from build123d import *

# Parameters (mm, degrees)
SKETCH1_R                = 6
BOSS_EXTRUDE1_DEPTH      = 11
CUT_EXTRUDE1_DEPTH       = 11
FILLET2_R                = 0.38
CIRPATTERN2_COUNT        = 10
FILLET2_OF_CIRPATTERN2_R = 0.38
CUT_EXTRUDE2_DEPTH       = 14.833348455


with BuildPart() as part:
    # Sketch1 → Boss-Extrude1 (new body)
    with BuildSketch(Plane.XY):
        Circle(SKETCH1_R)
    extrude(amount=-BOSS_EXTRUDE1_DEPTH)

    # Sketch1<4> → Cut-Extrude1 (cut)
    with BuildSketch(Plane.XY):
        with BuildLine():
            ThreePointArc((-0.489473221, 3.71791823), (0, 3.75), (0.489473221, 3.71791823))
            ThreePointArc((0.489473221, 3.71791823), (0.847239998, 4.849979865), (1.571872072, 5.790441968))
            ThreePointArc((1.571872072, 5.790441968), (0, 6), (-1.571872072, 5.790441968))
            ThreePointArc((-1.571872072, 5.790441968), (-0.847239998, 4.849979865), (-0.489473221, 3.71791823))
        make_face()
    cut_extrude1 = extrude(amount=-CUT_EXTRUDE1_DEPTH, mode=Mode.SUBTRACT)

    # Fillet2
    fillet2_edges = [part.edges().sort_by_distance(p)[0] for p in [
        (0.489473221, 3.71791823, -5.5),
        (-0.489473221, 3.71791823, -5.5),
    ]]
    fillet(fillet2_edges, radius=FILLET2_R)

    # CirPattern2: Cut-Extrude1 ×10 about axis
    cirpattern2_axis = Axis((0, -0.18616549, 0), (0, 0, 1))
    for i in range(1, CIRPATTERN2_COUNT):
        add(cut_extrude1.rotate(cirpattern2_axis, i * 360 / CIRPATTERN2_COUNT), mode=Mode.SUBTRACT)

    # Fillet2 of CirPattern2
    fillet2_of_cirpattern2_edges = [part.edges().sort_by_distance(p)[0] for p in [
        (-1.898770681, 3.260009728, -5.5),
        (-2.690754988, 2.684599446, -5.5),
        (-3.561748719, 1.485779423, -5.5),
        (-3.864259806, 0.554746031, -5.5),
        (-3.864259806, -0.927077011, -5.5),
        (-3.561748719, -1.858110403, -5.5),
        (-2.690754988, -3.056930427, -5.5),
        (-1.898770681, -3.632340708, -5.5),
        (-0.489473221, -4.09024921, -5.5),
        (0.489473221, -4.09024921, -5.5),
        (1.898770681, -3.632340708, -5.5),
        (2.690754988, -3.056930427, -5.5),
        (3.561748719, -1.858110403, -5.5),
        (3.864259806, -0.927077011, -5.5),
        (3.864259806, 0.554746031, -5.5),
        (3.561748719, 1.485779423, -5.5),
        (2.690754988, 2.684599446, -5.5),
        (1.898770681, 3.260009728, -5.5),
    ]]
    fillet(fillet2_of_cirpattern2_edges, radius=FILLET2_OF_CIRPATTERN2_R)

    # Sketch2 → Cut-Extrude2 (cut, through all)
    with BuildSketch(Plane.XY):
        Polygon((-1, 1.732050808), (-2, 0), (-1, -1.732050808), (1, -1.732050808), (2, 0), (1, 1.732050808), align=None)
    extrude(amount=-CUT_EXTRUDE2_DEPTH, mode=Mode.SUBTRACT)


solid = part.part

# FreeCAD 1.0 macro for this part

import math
import FreeCAD as App
import Part
import Sketcher

V = App.Vector
Q = App.Units.Quantity


def edges_at(feature, points):
    """Names of the edges that pass closest to the given points."""
    edges = feature.Shape.Edges
    near = lambda p: min(range(len(edges)), key=lambda i: edges[i].distToShape(Part.Vertex(*p))[0])
    return sorted({f"Edge{near(p) + 1}" for p in points})


def add_polygon(sketch, points):
    """Adds a closed chain of lines whose ends are joined by coincident constraints."""
    first, n = sketch.GeometryCount, len(points)
    for a, b in zip(points, points[1:] + points[:1]):
        sketch.addGeometry(Part.LineSegment(App.Vector(*a, 0), App.Vector(*b, 0)), False)
    for i in range(n):
        sketch.addConstraint(Sketcher.Constraint("Coincident", first + i, 2, first + (i + 1) % n, 1))

doc = App.newDocument("Part")
body = doc.addObject("PartDesign::Body", "Body")

# Sketch on XY plane
sketch1 = doc.addObject("Sketcher::SketchObject", "Sketch")
body.addObject(sketch1)
sketch1.AttachmentSupport = (doc.XY_Plane, [""])
sketch1.MapMode = "FlatFace"
sketch1.addGeometry(Part.Circle(V(0, 0, 0), V(0, 0, 1), 6), False)
sketch1.addConstraint([
    Sketcher.Constraint("Coincident", 0, 3, -1, 1),
    Sketcher.Constraint("Diameter", 0, Q("12 mm")),
])
pad1 = doc.addObject("PartDesign::Pad", "Pad")
body.addObject(pad1)
pad1.Profile = sketch1
pad1.Length = 11
pad1.Reversed = True

# Sketch on XY plane
sketch2 = doc.addObject("Sketcher::SketchObject", "Sketch001")
body.addObject(sketch2)
sketch2.AttachmentSupport = (doc.XY_Plane, [""])
sketch2.MapMode = "FlatFace"
sketch2.addGeometry([
    Part.ArcOfCircle(Part.Circle(V(0, 0, 0), V(0, 0, 1), 3.7), math.radians(82.5), math.radians(97.5)),
    Part.ArcOfCircle(Part.Circle(V(3.9, 3.3, 0), V(0, 0, 1), 3.4), math.radians(132), math.radians(173)),
    Part.ArcOfCircle(Part.Circle(V(0, 0, 0), V(0, 0, 1), 6), math.radians(75), math.radians(105)),
    Part.ArcOfCircle(Part.Circle(V(-3.9, 3.3, 0), V(0, 0, 1), 3.4), math.radians(7), math.radians(48)),
], False)
sketch2.addConstraint([
    Sketcher.Constraint("Coincident", 0, 1, 1, 2),
    Sketcher.Constraint("Coincident", 1, 1, 2, 1),
    Sketcher.Constraint("Coincident", 2, 2, 3, 2),
    Sketcher.Constraint("Coincident", 3, 1, 0, 2),
    Sketcher.Constraint("Coincident", 0, 3, -1, 1),
    Sketcher.Constraint("Coincident", 2, 3, -1, 1),
    Sketcher.Constraint("Equal", 1, 3),
    Sketcher.Constraint("Symmetric", 1, 3, 3, 3, -2),
    Sketcher.Constraint("Radius", 2, Q("6 mm")),
    Sketcher.Constraint("Radius", 0, Q("3.75 mm")),
    Sketcher.Constraint("Radius", 1, Q("3.405684 mm")),
    Sketcher.Constraint("DistanceX", 0, 1, 1, 1, Q("1.082399 mm")),
    Sketcher.Constraint("DistanceX", -1, 1, 1, 3, Q("3.866022 mm")),
])
pocket1 = doc.addObject("PartDesign::Pocket", "Pocket")
body.addObject(pocket1)
pocket1.Profile = sketch2
pocket1.Length = 11
doc.recompute()

fillet = doc.addObject("PartDesign::Fillet", "Fillet")
body.addObject(fillet)
fillet.Base = (pocket1, edges_at(pocket1, [(0.489, 3.718, -5.5), (-0.489, 3.718, -5.5)]))
fillet.Radius = 0.38
doc.recompute()

datumline = doc.addObject("PartDesign::Line", "DatumLine")
body.addObject(datumline)
datumline.Placement = App.Placement(V(0, -0.186165, 0), App.Rotation(V(0, 0, 1), V(0, 0, 1)))
polarpattern = doc.addObject("PartDesign::PolarPattern", "PolarPattern")
body.addObject(polarpattern)
polarpattern.Originals = [pocket1]
polarpattern.Axis = (datumline, [""])
polarpattern.Angle = 360
polarpattern.Occurrences = 10
body.Tip = polarpattern
doc.recompute()

fillet2 = doc.addObject("PartDesign::Fillet", "Fillet001")
body.addObject(fillet2)
fillet2.Base = (polarpattern, edges_at(polarpattern, [
    (-1.899, 3.26, -5.5),
    (-2.691, 2.685, -5.5),
    (-3.562, 1.486, -5.5),
    (-3.864, 0.555, -5.5),
    (-3.864, -0.927, -5.5),
    (-3.562, -1.858, -5.5),
    (-2.691, -3.057, -5.5),
    (-1.899, -3.632, -5.5),
    (-0.489, -4.09, -5.5),
    (0.489, -4.09, -5.5),
    (1.899, -3.632, -5.5),
    (2.691, -3.057, -5.5),
    (3.562, -1.858, -5.5),
    (3.864, -0.927, -5.5),
    (3.864, 0.555, -5.5),
    (3.562, 1.486, -5.5),
    (2.691, 2.685, -5.5),
    (1.899, 3.26, -5.5),
]))
fillet2.Radius = 0.38

# Sketch on XY plane
sketch3 = doc.addObject("Sketcher::SketchObject", "Sketch002")
body.addObject(sketch3)
sketch3.AttachmentSupport = (doc.XY_Plane, [""])
sketch3.MapMode = "FlatFace"
add_polygon(sketch3, [(-1, 1.7), (-2, 0), (-1, -1.7), (1, -1.7), (2, 0), (1, 1.7)])  # lines 0-5
sketch3.addConstraint([
    Sketcher.Constraint("Horizontal", 2),
    Sketcher.Constraint("Horizontal", 5),
    Sketcher.Constraint("Symmetric", 0, 2, 3, 2, -1, 1),
    Sketcher.Constraint("Symmetric", 1, 2, 4, 2, -1, 1),
    Sketcher.Constraint("PointOnObject", 0, 2, -1),
    Sketcher.Constraint("Parallel", 0, 3),
    Sketcher.Constraint("Vertical", 2, 2, 4, 2),
    Sketcher.Constraint("DistanceX", 2, 1, 2, 2, Q("2 mm")),
    Sketcher.Constraint("Angle", 0, Q("-120 deg")),
    Sketcher.Constraint("Distance", 0, Q("2 mm")),
])
pocket2 = doc.addObject("PartDesign::Pocket", "Pocket001")
body.addObject(pocket2)
pocket2.Profile = sketch3
pocket2.Type = "ThroughAll"

doc.recompute()
